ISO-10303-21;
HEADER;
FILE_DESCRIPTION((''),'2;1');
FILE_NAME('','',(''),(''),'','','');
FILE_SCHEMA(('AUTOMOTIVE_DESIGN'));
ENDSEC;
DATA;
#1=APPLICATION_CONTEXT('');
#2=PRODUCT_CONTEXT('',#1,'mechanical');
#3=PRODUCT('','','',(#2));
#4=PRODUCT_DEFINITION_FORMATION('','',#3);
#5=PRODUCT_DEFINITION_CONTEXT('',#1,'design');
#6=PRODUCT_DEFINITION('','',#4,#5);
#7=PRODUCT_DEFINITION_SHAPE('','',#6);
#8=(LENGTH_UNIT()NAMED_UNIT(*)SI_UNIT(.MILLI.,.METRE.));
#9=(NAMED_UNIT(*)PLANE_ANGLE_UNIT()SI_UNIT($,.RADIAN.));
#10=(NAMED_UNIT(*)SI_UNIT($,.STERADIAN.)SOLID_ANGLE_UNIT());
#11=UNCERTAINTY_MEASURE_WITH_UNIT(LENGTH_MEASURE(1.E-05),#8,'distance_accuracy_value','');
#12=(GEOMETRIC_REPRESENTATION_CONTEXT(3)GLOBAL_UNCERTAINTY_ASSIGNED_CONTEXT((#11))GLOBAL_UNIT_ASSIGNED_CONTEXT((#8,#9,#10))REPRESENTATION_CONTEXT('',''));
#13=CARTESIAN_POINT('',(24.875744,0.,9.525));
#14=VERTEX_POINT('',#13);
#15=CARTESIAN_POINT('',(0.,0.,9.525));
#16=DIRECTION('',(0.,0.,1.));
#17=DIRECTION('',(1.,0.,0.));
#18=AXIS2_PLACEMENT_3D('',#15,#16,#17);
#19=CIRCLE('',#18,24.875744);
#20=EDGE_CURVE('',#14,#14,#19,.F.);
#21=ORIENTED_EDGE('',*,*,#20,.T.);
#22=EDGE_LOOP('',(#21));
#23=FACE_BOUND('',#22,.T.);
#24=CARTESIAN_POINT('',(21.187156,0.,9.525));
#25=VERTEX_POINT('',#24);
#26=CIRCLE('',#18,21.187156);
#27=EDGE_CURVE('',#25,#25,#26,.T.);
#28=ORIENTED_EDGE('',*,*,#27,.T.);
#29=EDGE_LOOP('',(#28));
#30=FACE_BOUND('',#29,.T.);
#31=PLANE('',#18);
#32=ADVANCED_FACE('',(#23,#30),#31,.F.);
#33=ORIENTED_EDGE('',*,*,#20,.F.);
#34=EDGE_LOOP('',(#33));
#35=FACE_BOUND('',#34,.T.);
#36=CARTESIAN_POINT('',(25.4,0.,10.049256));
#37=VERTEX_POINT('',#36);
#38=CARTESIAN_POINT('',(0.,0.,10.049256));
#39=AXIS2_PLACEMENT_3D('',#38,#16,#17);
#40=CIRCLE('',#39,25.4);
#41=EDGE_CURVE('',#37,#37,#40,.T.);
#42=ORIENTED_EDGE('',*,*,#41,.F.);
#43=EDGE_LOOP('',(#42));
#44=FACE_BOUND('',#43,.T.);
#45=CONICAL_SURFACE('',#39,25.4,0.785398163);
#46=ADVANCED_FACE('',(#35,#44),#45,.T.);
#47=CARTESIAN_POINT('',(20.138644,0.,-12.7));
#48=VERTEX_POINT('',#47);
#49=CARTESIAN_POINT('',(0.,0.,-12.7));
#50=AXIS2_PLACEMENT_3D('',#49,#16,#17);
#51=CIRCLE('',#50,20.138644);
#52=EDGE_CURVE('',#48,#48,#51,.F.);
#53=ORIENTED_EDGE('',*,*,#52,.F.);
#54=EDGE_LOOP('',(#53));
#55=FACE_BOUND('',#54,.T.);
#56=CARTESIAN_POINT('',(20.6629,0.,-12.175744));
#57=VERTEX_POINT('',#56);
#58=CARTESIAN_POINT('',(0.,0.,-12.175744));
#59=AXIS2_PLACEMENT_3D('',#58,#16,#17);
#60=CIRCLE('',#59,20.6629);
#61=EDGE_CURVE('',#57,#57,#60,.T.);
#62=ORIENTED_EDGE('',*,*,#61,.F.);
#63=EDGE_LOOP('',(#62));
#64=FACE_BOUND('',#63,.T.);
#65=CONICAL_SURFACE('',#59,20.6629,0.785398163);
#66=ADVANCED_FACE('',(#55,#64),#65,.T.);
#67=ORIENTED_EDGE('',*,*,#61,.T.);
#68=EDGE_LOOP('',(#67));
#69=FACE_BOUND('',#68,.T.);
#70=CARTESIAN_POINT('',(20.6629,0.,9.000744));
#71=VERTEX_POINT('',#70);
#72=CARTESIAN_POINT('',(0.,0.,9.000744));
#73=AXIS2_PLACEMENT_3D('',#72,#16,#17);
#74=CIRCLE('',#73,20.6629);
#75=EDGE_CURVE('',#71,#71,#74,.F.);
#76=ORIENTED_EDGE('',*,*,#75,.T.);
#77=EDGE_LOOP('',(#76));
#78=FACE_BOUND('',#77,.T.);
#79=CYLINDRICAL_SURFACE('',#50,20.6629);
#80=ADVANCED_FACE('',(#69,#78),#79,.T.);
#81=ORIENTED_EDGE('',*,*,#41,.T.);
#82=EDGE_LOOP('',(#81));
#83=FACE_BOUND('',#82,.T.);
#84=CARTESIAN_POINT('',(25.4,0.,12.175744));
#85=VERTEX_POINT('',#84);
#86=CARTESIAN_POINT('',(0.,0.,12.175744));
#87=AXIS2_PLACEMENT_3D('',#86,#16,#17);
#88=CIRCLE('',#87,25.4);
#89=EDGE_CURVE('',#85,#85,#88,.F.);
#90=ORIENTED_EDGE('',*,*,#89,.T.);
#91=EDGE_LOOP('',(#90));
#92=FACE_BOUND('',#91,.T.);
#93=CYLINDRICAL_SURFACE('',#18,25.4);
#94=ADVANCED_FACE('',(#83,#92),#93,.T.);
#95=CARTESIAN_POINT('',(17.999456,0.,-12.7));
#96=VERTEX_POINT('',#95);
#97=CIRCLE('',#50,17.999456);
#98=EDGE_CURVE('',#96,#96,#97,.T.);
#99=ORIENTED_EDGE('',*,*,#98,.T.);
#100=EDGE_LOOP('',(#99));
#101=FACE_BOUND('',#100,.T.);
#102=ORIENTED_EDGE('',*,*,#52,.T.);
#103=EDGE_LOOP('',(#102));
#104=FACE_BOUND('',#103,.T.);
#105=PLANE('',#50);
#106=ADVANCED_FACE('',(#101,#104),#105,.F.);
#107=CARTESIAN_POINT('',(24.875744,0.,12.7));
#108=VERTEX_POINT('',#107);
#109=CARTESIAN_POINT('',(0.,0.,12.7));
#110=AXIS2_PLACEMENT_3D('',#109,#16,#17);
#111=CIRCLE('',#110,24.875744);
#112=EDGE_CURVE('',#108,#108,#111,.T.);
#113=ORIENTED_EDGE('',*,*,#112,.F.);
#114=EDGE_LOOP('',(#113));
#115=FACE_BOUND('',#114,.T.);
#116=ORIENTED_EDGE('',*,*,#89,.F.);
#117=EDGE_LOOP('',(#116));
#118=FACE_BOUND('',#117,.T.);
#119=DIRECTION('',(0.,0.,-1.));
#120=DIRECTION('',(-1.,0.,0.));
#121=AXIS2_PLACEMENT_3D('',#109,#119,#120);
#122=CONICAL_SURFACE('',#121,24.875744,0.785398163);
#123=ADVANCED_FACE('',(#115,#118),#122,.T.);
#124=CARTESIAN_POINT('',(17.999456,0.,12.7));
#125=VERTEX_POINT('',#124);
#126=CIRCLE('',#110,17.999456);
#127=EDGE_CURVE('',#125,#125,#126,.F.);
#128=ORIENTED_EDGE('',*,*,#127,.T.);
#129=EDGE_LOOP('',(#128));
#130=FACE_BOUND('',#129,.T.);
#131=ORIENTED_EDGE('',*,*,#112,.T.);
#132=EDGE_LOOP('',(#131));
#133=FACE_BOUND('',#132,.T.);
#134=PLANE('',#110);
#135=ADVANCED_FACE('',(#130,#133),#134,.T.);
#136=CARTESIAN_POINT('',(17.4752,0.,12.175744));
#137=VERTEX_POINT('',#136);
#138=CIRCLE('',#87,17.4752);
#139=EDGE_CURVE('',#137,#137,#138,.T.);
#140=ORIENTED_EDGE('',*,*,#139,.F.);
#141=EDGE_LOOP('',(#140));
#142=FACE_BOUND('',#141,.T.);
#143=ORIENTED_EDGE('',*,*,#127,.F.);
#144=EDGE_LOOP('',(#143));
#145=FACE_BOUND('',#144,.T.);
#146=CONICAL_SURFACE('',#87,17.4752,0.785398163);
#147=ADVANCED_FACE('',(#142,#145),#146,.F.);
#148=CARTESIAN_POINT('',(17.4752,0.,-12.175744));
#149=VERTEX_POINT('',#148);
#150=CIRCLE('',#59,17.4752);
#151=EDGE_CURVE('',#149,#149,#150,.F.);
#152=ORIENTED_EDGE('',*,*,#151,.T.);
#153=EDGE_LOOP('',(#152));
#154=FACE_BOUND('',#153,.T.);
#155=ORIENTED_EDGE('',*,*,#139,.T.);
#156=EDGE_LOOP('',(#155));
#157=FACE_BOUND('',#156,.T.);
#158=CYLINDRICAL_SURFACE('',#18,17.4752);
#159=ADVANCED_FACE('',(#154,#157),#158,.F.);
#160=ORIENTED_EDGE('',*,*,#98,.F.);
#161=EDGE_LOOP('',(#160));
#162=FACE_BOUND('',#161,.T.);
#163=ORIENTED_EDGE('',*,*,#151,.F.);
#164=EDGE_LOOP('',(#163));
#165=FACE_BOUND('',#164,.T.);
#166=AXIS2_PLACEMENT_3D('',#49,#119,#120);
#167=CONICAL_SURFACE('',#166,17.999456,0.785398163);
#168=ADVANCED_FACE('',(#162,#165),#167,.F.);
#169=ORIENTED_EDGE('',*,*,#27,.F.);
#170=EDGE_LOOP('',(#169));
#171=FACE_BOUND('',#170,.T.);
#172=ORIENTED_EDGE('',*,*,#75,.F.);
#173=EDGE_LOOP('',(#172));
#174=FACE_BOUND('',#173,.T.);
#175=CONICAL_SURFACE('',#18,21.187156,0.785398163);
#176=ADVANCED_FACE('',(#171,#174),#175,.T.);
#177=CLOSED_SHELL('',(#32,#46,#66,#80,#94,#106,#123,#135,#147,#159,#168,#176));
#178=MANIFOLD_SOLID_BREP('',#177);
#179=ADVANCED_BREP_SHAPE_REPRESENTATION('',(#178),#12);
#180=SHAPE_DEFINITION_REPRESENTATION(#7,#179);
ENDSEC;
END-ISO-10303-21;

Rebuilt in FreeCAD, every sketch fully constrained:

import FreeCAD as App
import Part
import Sketcher
from FreeCAD import Vector
Q = App.Units.Quantity


def edges_at(feature, points):
    """Names of the edges that pass closest to the given points."""
    edges = feature.Shape.Edges
    near = lambda p: min(range(len(edges)), key=lambda i: edges[i].distToShape(Part.Vertex(*p))[0])
    return sorted({f"Edge{near(p) + 1}" for p in points})

doc = App.newDocument("Part")
params = doc.addObject("Spreadsheet::Sheet", "Params")
for row, (alias, value) in enumerate([
    ("sketch1_diameter", "2 in"),
    ("sketch1_diameter2", "1.376 in"),
    ("pad1_length", "0.125 in"),
    ("sketch2_diameter", "1.627 in"),
    ("sketch2_diameter2", "1.376 in"),
    ("pad2_length", "0.875 in"),
    ("chamfer_size", "0.524256 mm"),
], start=1):
    params.set(f"A{row}", alias)
    params.set(f"B{row}", "=" + value)
    params.setAlias(f"B{row}", alias)

body = doc.addObject("PartDesign::Body", "Body")

# Sketch on XY plane
sketch1 = body.newObject("Sketcher::SketchObject", "Sketch")
sketch1.AttachmentSupport = (doc.getObject("XY_Plane"), [""])
sketch1.MapMode = "FlatFace"
sketch1.AttachmentOffset = App.Placement(Vector(0, 0, 0.5 * 25.4), App.Rotation())
sketch1.addGeometry([
    Part.Circle(Vector(0, 0, 0), Vector(0, 0, 1), 25.4),
    Part.Circle(Vector(0, 0, 0), Vector(0, 0, 1), 17.4752),
], False)
sketch1.addConstraint([
    Sketcher.Constraint("Coincident", 0, 3, -1, 1),
    Sketcher.Constraint("Coincident", 1, 3, -1, 1),
    Sketcher.Constraint("Diameter", 0, Q("2 in")),
    Sketcher.Constraint("Diameter", 1, Q("1.376 in")),
])
sketch1.setExpression("Constraints[2]", "Params.sketch1_diameter")
sketch1.setExpression("Constraints[3]", "Params.sketch1_diameter2")
pad1 = body.newObject("PartDesign::Pad", "Pad")
pad1.Profile = sketch1
pad1.setExpression("Length", "Params.pad1_length")
pad1.Reversed = True

# Sketch on XY plane
sketch2 = body.newObject("Sketcher::SketchObject", "Sketch001")
sketch2.AttachmentSupport = (doc.getObject("XY_Plane"), [""])
sketch2.MapMode = "FlatFace"
sketch2.AttachmentOffset = App.Placement(Vector(0, 0, 0.375 * 25.4), App.Rotation())
sketch2.addGeometry([
    Part.Circle(Vector(0, 0, 0), Vector(0, 0, 1), 20.6629),
    Part.Circle(Vector(0, 0, 0), Vector(0, 0, 1), 17.4752),
], False)
sketch2.addConstraint([
    Sketcher.Constraint("Coincident", 0, 3, -1, 1),
    Sketcher.Constraint("Coincident", 1, 3, -1, 1),
    Sketcher.Constraint("Diameter", 0, Q("1.627 in")),
    Sketcher.Constraint("Diameter", 1, Q("1.376 in")),
])
sketch2.setExpression("Constraints[2]", "Params.sketch2_diameter")
sketch2.setExpression("Constraints[3]", "Params.sketch2_diameter2")
pad2 = body.newObject("PartDesign::Pad", "Pad001")
pad2.Profile = sketch2
pad2.setExpression("Length", "Params.pad2_length")
pad2.Reversed = True
doc.recompute()

chamfer = body.newObject("PartDesign::Chamfer", "Chamfer")
chamfer.Base = (pad2, edges_at(pad2, [
    (-17.475, 0, -12.7),
    (-20.663, 0, 9.525),
    (-25.4, 0, 12.7),
    (-25.4, 0, 9.525),
    (-17.475, 0, 12.7),
    (-20.663, 0, -12.7),
]))
chamfer.setExpression("Size", "Params.chamfer_size")

doc.recompute()
